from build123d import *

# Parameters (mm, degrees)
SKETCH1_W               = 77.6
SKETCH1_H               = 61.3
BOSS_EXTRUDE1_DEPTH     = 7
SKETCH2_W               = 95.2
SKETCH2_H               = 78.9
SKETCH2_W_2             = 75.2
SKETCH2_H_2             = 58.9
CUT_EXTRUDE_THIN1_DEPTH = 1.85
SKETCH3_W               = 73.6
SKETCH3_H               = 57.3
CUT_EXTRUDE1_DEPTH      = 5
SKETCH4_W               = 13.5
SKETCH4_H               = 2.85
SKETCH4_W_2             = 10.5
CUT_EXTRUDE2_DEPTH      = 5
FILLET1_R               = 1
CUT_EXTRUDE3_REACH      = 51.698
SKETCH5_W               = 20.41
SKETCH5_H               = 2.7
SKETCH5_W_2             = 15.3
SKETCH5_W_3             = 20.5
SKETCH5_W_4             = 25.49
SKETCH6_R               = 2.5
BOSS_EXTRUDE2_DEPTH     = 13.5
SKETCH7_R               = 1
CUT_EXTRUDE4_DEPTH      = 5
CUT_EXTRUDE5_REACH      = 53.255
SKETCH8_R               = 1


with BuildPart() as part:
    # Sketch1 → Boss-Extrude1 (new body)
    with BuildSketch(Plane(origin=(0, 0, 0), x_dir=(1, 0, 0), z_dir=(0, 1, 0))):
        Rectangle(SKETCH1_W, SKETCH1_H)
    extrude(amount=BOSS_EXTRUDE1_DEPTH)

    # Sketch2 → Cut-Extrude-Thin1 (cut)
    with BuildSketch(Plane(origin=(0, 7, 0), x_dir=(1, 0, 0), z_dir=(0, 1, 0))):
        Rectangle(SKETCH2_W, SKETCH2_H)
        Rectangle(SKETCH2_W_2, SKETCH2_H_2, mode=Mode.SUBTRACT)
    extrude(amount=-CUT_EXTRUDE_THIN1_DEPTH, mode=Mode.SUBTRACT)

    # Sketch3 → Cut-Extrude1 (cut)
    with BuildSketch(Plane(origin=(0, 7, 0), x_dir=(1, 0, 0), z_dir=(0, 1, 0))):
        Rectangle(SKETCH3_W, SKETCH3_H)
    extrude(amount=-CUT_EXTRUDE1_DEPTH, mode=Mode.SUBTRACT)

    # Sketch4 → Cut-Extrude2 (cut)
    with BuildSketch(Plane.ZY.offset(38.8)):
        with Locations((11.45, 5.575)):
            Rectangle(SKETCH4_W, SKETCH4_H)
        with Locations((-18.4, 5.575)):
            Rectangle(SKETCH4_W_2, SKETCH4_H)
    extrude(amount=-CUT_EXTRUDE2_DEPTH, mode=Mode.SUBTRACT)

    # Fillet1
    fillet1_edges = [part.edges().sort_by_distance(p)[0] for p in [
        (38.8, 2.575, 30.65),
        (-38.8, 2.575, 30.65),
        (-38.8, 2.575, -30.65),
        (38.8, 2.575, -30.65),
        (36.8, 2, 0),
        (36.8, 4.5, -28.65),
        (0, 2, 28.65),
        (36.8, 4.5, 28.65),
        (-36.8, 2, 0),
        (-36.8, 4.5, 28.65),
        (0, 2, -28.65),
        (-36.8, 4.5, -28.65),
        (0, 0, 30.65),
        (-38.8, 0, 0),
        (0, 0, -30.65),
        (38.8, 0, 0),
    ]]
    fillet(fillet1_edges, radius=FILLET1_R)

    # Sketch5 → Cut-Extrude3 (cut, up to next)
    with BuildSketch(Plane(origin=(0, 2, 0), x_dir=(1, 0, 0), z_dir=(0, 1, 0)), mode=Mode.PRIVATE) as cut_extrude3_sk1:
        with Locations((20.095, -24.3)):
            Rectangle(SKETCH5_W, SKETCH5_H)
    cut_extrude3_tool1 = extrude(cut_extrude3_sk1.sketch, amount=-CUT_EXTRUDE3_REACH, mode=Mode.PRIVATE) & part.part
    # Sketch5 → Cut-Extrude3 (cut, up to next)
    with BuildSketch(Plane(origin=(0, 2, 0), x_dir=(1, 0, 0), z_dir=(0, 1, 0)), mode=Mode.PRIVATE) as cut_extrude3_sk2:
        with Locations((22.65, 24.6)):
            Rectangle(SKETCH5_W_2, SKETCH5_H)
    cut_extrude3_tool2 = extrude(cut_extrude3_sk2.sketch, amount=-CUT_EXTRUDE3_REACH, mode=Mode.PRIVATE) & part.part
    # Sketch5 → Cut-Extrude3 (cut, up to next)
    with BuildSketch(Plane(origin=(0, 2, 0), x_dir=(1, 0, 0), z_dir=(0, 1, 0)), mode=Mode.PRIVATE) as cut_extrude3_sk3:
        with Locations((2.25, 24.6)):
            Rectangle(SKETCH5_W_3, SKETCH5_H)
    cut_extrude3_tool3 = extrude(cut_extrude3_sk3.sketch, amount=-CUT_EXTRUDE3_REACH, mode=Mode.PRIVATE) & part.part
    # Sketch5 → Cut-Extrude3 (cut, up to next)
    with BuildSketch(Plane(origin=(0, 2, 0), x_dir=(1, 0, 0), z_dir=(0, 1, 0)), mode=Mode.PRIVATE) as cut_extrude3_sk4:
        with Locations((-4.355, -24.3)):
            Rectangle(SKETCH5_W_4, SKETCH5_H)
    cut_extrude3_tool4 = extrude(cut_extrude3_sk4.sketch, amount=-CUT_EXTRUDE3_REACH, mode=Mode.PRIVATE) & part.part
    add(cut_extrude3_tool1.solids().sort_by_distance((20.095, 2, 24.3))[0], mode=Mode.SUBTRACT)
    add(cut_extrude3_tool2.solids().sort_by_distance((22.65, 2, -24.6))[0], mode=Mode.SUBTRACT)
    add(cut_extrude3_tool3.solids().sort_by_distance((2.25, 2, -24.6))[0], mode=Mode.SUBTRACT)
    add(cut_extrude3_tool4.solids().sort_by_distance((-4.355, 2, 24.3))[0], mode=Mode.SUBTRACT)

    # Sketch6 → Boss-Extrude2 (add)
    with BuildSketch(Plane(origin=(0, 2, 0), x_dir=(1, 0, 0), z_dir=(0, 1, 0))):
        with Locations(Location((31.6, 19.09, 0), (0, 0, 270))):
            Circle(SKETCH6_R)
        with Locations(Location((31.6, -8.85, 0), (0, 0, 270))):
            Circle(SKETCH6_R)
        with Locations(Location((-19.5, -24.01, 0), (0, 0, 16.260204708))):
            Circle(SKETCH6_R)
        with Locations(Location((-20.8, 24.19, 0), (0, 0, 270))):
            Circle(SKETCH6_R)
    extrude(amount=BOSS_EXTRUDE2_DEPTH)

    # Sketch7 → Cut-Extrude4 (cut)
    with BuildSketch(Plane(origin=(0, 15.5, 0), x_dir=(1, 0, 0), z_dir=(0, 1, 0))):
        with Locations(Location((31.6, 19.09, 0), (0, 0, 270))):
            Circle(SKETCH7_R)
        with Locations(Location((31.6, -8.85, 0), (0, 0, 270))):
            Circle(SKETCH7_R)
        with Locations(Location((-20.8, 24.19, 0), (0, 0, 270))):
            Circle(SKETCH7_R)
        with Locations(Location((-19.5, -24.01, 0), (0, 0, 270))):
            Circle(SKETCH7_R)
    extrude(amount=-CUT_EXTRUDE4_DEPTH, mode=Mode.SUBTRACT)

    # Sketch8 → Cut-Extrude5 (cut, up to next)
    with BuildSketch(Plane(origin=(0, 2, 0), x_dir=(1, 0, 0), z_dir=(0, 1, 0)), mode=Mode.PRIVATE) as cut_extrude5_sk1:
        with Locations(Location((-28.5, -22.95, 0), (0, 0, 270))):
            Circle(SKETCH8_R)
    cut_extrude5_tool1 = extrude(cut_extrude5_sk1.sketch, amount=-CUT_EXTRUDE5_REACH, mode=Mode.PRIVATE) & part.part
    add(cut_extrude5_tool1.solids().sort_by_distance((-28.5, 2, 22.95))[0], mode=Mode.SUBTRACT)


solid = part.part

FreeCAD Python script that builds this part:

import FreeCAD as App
import Part
import Sketcher

V = App.Vector
Q = App.Units.Quantity


def edges_at(feature, points):
    """Names of the edges that pass closest to the given points."""
    edges = feature.Shape.Edges
    near = lambda p: min(range(len(edges)), key=lambda i: edges[i].distToShape(Part.Vertex(*p))[0])
    return sorted({f"Edge{near(p) + 1}" for p in points})


def add_polygon(sketch, points):
    """Adds a closed chain of lines whose ends are joined by coincident constraints."""
    first, n = sketch.GeometryCount, len(points)
    for a, b in zip(points, points[1:] + points[:1]):
        sketch.addGeometry(Part.LineSegment(App.Vector(*a, 0), App.Vector(*b, 0)), False)
    for i in range(n):
        sketch.addConstraint(Sketcher.Constraint("Coincident", first + i, 2, first + (i + 1) % n, 1))

doc = App.newDocument("Part")
body = doc.addObject("PartDesign::Body", "Body")

# Sketch on XZ plane
sketch1 = body.newObject("Sketcher::SketchObject", "Sketch")
sketch1.AttachmentSupport = (doc.getObject("XZ_Plane"), [""])
sketch1.MapMode = "FlatFace"
add_polygon(sketch1, [(-38.8, -30.65), (-38.8, 30.65), (38.8, 30.65), (38.8, -30.65)])  # lines 0-3
sketch1.addConstraint([
    Sketcher.Constraint("Vertical", 0),
    Sketcher.Constraint("Horizontal", 1),
    Sketcher.Constraint("Vertical", 2),
    Sketcher.Constraint("Horizontal", 3),
    Sketcher.Constraint("Symmetric", 0, 2, 2, 2, -1, 1),
    Sketcher.Constraint("DistanceX", 1, 1, 1, 2, Q("77.6 mm")),
    Sketcher.Constraint("DistanceY", 0, 1, 0, 2, Q("61.3 mm")),
])
pad1 = body.newObject("PartDesign::Pad", "Pad")
pad1.Profile = sketch1
pad1.Length = 7
pad1.Reversed = True

# Sketch on XZ plane
sketch2 = body.newObject("Sketcher::SketchObject", "Sketch001")
sketch2.AttachmentSupport = (doc.getObject("XZ_Plane"), [""])
sketch2.MapMode = "FlatFace"
sketch2.AttachmentOffset = App.Placement(V(0, 0, -7), App.Rotation())
add_polygon(sketch2, [(-47.6, -39.45), (-47.6, 39.45), (47.6, 39.45), (47.6, -39.45)])  # lines 0-3
add_polygon(sketch2, [(37.6, 29.45), (-37.6, 29.45), (-37.6, -29.45), (37.6, -29.45)])  # lines 4-7
sketch2.addConstraint([
    Sketcher.Constraint("Vertical", 0),
    Sketcher.Constraint("Horizontal", 1),
    Sketcher.Constraint("Vertical", 2),
    Sketcher.Constraint("Horizontal", 3),
    Sketcher.Constraint("Horizontal", 4),
    Sketcher.Constraint("Vertical", 5),
    Sketcher.Constraint("Horizontal", 6),
    Sketcher.Constraint("Vertical", 7),
    Sketcher.Constraint("Symmetric", 0, 2, 2, 2, -1, 1),
    Sketcher.Constraint("Symmetric", 4, 2, 6, 2, -1, 1),
    Sketcher.Constraint("DistanceX", 1, 1, 1, 2, Q("95.2 mm")),
    Sketcher.Constraint("DistanceX", 4, 2, 4, 1, Q("75.2 mm")),
    Sketcher.Constraint("DistanceY", 0, 1, 0, 2, Q("78.9 mm")),
    Sketcher.Constraint("DistanceY", 5, 2, 5, 1, Q("58.9 mm")),
])
pocket1 = body.newObject("PartDesign::Pocket", "Pocket")
pocket1.Profile = sketch2
pocket1.Length = 1.85
pocket1.Reversed = True

# Sketch on XZ plane
sketch3 = body.newObject("Sketcher::SketchObject", "Sketch002")
sketch3.AttachmentSupport = (doc.getObject("XZ_Plane"), [""])
sketch3.MapMode = "FlatFace"
sketch3.AttachmentOffset = App.Placement(V(0, 0, -7), App.Rotation())
add_polygon(sketch3, [(-36.8, -28.65), (-36.8, 28.65), (36.8, 28.65), (36.8, -28.65)])  # lines 0-3
sketch3.addConstraint([
    Sketcher.Constraint("Vertical", 0),
    Sketcher.Constraint("Horizontal", 1),
    Sketcher.Constraint("Vertical", 2),
    Sketcher.Constraint("Horizontal", 3),
    Sketcher.Constraint("Symmetric", 0, 2, 2, 2, -1, 1),
    Sketcher.Constraint("DistanceX", 1, 1, 1, 2, Q("73.6 mm")),
    Sketcher.Constraint("DistanceY", 0, 1, 0, 2, Q("57.3 mm")),
])
pocket2 = body.newObject("PartDesign::Pocket", "Pocket001")
pocket2.Profile = sketch3
pocket2.Length = 5
pocket2.Reversed = True

# Sketch on YZ plane
sketch4 = body.newObject("Sketcher::SketchObject", "Sketch003")
sketch4.AttachmentSupport = (doc.getObject("YZ_Plane"), [""])
sketch4.MapMode = "FlatFace"
sketch4.AttachmentOffset = App.Placement(V(0, 0, -38.8), App.Rotation())
add_polygon(sketch4, [(7, 4.7), (4.15, 4.7), (4.15, 18.2), (7, 18.2)])  # lines 0-3
add_polygon(sketch4, [(7, -23.65), (4.15, -23.65), (4.15, -13.15), (7, -13.15)])  # lines 4-7
sketch4.addConstraint([
    Sketcher.Constraint("Horizontal", 0),
    Sketcher.Constraint("Vertical", 1),
    Sketcher.Constraint("Horizontal", 2),
    Sketcher.Constraint("Vertical", 3),
    Sketcher.Constraint("Horizontal", 4),
    Sketcher.Constraint("Vertical", 5),
    Sketcher.Constraint("Horizontal", 6),
    Sketcher.Constraint("Vertical", 7),
    Sketcher.Constraint("Vertical", 1, 2, 4, 2),
    Sketcher.Constraint("Vertical", 3, 2, 6, 2),
    Sketcher.Constraint("DistanceY", 1, 1, 1, 2, Q("13.5 mm")),
    Sketcher.Constraint("DistanceY", 5, 1, 5, 2, Q("10.5 mm")),
    Sketcher.Constraint("DistanceX", -1, 1, 2, 2, Q("7 mm")),
    Sketcher.Constraint("DistanceX", 0, 2, 0, 1, Q("2.85 mm")),
    Sketcher.Constraint("DistanceY", -1, 1, 0, 2, Q("4.7 mm")),
    Sketcher.Constraint("DistanceY", 4, 2, -1, 1, Q("23.65 mm")),
])
pocket3 = body.newObject("PartDesign::Pocket", "Pocket002")
pocket3.Profile = sketch4
pocket3.Length = 5
pocket3.Reversed = True
doc.recompute()

fillet = body.newObject("PartDesign::Fillet", "Fillet")
fillet.Base = (pocket3, edges_at(pocket3, [
    (38.8, 2.575, 30.65),
    (-38.8, 2.575, 30.65),
    (-38.8, 2.575, -30.65),
    (38.8, 2.575, -30.65),
    (36.8, 2, 0),
    (36.8, 4.5, -28.65),
    (0, 2, 28.65),
    (36.8, 4.5, 28.65),
    (-36.8, 2, 0),
    (-36.8, 4.5, 28.65),
    (0, 2, -28.65),
    (-36.8, 4.5, -28.65),
    (0, 0, 30.65),
    (-38.8, 0, 0),
    (0, 0, -30.65),
    (38.8, 0, 0),
]))
fillet.Radius = 1

# Sketch on XZ plane
sketch5 = body.newObject("Sketcher::SketchObject", "Sketch004")
sketch5.AttachmentSupport = (doc.getObject("XZ_Plane"), [""])
sketch5.MapMode = "FlatFace"
sketch5.AttachmentOffset = App.Placement(V(0, 0, -2), App.Rotation())
add_polygon(sketch5, [(9.89, 22.95), (9.89, 25.65), (30.3, 25.65), (30.3, 22.95)])  # lines 0-3
sketch5.addConstraint([
    Sketcher.Constraint("Vertical", 0),
    Sketcher.Constraint("Horizontal", 1),
    Sketcher.Constraint("Vertical", 2),
    Sketcher.Constraint("Horizontal", 3),
    Sketcher.Constraint("DistanceY", 0, 1, 0, 2, Q("2.7 mm")),
    Sketcher.Constraint("DistanceX", 1, 1, 1, 2, Q("20.41 mm")),
    Sketcher.Constraint("DistanceX", -1, 1, 1, 2, Q("30.3 mm")),
    Sketcher.Constraint("DistanceY", -1, 1, 0, 2, Q("25.65 mm")),
])
pocket4 = body.newObject("PartDesign::Pocket", "Pocket003")
pocket4.Profile = sketch5
pocket4.Type = "UpToFirst"
pocket4.Reversed = True

# Sketch on XZ plane
sketch6 = body.newObject("Sketcher::SketchObject", "Sketch005")
sketch6.AttachmentSupport = (doc.getObject("XZ_Plane"), [""])
sketch6.MapMode = "FlatFace"
sketch6.AttachmentOffset = App.Placement(V(0, 0, -2), App.Rotation())
add_polygon(sketch6, [(15, -25.95), (15, -23.25), (30.3, -23.25), (30.3, -25.95)])  # lines 0-3
sketch6.addConstraint([
    Sketcher.Constraint("Vertical", 0),
    Sketcher.Constraint("Horizontal", 1),
    Sketcher.Constraint("Vertical", 2),
    Sketcher.Constraint("Horizontal", 3),
    Sketcher.Constraint("DistanceX", 1, 1, 1, 2, Q("15.3 mm")),
    Sketcher.Constraint("DistanceY", 0, 1, 0, 2, Q("2.7 mm")),
    Sketcher.Constraint("DistanceX", -1, 1, 0, 2, Q("15 mm")),
    Sketcher.Constraint("DistanceY", 0, 2, -1, 1, Q("23.25 mm")),
])
pocket5 = body.newObject("PartDesign::Pocket", "Pocket004")
pocket5.Profile = sketch6
pocket5.Type = "UpToFirst"
pocket5.Reversed = True

# Sketch on XZ plane
sketch7 = body.newObject("Sketcher::SketchObject", "Sketch006")
sketch7.AttachmentSupport = (doc.getObject("XZ_Plane"), [""])
sketch7.MapMode = "FlatFace"
sketch7.AttachmentOffset = App.Placement(V(0, 0, -2), App.Rotation())
add_polygon(sketch7, [(-8, -25.95), (-8, -23.25), (12.5, -23.25), (12.5, -25.95)])  # lines 0-3
sketch7.addConstraint([
    Sketcher.Constraint("Vertical", 0),
    Sketcher.Constraint("Horizontal", 1),
    Sketcher.Constraint("Vertical", 2),
    Sketcher.Constraint("Horizontal", 3),
    Sketcher.Constraint("DistanceX", 1, 1, 1, 2, Q("20.5 mm")),
    Sketcher.Constraint("DistanceY", 0, 1, 0, 2, Q("2.7 mm")),
    Sketcher.Constraint("DistanceX", 0, 2, -1, 1, Q("8 mm")),
    Sketcher.Constraint("DistanceY", 0, 2, -1, 1, Q("23.25 mm")),
])
pocket6 = body.newObject("PartDesign::Pocket", "Pocket005")
pocket6.Profile = sketch7
pocket6.Type = "UpToFirst"
pocket6.Reversed = True

# Sketch on XZ plane
sketch8 = body.newObject("Sketcher::SketchObject", "Sketch007")
sketch8.AttachmentSupport = (doc.getObject("XZ_Plane"), [""])
sketch8.MapMode = "FlatFace"
sketch8.AttachmentOffset = App.Placement(V(0, 0, -2), App.Rotation())
add_polygon(sketch8, [(-17.1, 22.95), (-17.1, 25.65), (8.39, 25.65), (8.39, 22.95)])  # lines 0-3
sketch8.addConstraint([
    Sketcher.Constraint("Vertical", 0),
    Sketcher.Constraint("Horizontal", 1),
    Sketcher.Constraint("Vertical", 2),
    Sketcher.Constraint("Horizontal", 3),
    Sketcher.Constraint("DistanceY", 0, 1, 0, 2, Q("2.7 mm")),
    Sketcher.Constraint("DistanceX", 1, 1, 1, 2, Q("25.49 mm")),
    Sketcher.Constraint("DistanceX", 0, 2, -1, 1, Q("17.1 mm")),
    Sketcher.Constraint("DistanceY", -1, 1, 0, 2, Q("25.65 mm")),
])
pocket7 = body.newObject("PartDesign::Pocket", "Pocket006")
pocket7.Profile = sketch8
pocket7.Type = "UpToFirst"
pocket7.Reversed = True

# Sketch on XZ plane
sketch9 = body.newObject("Sketcher::SketchObject", "Sketch008")
sketch9.AttachmentSupport = (doc.getObject("XZ_Plane"), [""])
sketch9.MapMode = "FlatFace"
sketch9.AttachmentOffset = App.Placement(V(0, 0, -2), App.Rotation())
sketch9.addGeometry([
    Part.Circle(V(31.6, -19.09, 0), V(0, 0, 1), 2.5),
    Part.Circle(V(31.6, 8.85, 0), V(0, 0, 1), 2.5),
    Part.Circle(V(-19.5, 24.01, 0), V(0, 0, 1), 2.5),
    Part.Circle(V(-20.8, -24.19, 0), V(0, 0, 1), 2.5),
], False)
sketch9.addConstraint([
    Sketcher.Constraint("Equal", 0, 1),
    Sketcher.Constraint("Equal", 1, 2),
    Sketcher.Constraint("Equal", 2, 3),
    Sketcher.Constraint("Vertical", 0, 3, 1, 3),
    Sketcher.Constraint("Diameter", 0, Q("5 mm")),
    Sketcher.Constraint("DistanceX", -1, 1, 0, 3, Q("31.6 mm")),
    Sketcher.Constraint("DistanceX", 2, 3, -1, 1, Q("19.5 mm")),
    Sketcher.Constraint("DistanceX", 3, 3, -1, 1, Q("20.8 mm")),
    Sketcher.Constraint("DistanceY", 0, 3, 2, 3, Q("43.1 mm")),
    Sketcher.Constraint("DistanceY", 3, 3, 2, 3, Q("48.2 mm")),
    Sketcher.Constraint("DistanceY", 0, 3, -1, 1, Q("19.09 mm")),
    Sketcher.Constraint("DistanceY", -1, 1, 1, 3, Q("8.85 mm")),
])
pad2 = body.newObject("PartDesign::Pad", "Pad001")
pad2.Profile = sketch9
pad2.Length = 13.5
pad2.Reversed = True

# Sketch on XZ plane
sketch10 = body.newObject("Sketcher::SketchObject", "Sketch009")
sketch10.AttachmentSupport = (doc.getObject("XZ_Plane"), [""])
sketch10.MapMode = "FlatFace"
sketch10.AttachmentOffset = App.Placement(V(0, 0, -15.5), App.Rotation())
sketch10.addGeometry([
    Part.Circle(V(31.6, -19.09, 0), V(0, 0, 1), 1),
    Part.Circle(V(31.6, 8.85, 0), V(0, 0, 1), 1),
    Part.Circle(V(-20.8, -24.19, 0), V(0, 0, 1), 1),
    Part.Circle(V(-19.5, 24.01, 0), V(0, 0, 1), 1),
], False)
sketch10.addConstraint([
    Sketcher.Constraint("Equal", 0, 1),
    Sketcher.Constraint("Equal", 1, 2),
    Sketcher.Constraint("Equal", 2, 3),
    Sketcher.Constraint("Vertical", 0, 3, 1, 3),
    Sketcher.Constraint("Diameter", 0, Q("2 mm")),
    Sketcher.Constraint("DistanceX", -1, 1, 0, 3, Q("31.6 mm")),
    Sketcher.Constraint("DistanceX", 2, 3, -1, 1, Q("20.8 mm")),
    Sketcher.Constraint("DistanceX", 3, 3, -1, 1, Q("19.5 mm")),
    Sketcher.Constraint("DistanceY", 2, 3, 0, 3, Q("5.1 mm")),
    Sketcher.Constraint("DistanceY", 2, 3, 3, 3, Q("48.2 mm")),
    Sketcher.Constraint("DistanceY", 0, 3, -1, 1, Q("19.09 mm")),
    Sketcher.Constraint("DistanceY", -1, 1, 1, 3, Q("8.85 mm")),
])
pocket8 = body.newObject("PartDesign::Pocket", "Pocket007")
pocket8.Profile = sketch10
pocket8.Length = 5
pocket8.Reversed = True

# Sketch on XZ plane
sketch11 = body.newObject("Sketcher::SketchObject", "Sketch010")
sketch11.AttachmentSupport = (doc.getObject("XZ_Plane"), [""])
sketch11.MapMode = "FlatFace"
sketch11.AttachmentOffset = App.Placement(V(0, 0, -2), App.Rotation())
sketch11.addGeometry(Part.Circle(V(-28.5, 22.95, 0), V(0, 0, 1), 1), False)
sketch11.addConstraint([
    Sketcher.Constraint("Diameter", 0, Q("2 mm")),
    Sketcher.Constraint("DistanceX", 0, 3, -1, 1, Q("28.5 mm")),
    Sketcher.Constraint("DistanceY", -1, 1, 0, 3, Q("22.95 mm")),
])
pocket9 = body.newObject("PartDesign::Pocket", "Pocket008")
pocket9.Profile = sketch11
pocket9.Type = "UpToFirst"
pocket9.Reversed = True

doc.recompute()
